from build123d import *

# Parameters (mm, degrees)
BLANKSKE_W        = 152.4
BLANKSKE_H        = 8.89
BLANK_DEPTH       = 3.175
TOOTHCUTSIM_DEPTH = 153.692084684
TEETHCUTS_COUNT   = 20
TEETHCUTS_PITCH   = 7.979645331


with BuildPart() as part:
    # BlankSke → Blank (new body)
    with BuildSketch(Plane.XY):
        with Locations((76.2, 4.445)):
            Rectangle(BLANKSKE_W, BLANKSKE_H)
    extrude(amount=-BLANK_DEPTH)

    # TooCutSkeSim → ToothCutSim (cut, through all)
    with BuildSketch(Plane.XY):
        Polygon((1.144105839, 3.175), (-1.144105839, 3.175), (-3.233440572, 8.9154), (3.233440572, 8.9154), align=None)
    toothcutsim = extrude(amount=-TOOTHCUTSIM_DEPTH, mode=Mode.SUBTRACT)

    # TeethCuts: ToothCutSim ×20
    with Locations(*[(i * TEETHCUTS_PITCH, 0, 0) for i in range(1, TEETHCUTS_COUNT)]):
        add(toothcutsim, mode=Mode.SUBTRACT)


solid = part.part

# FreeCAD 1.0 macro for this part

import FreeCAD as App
import Part
import Sketcher
Q = App.Units.Quantity


def add_polygon(sketch, points):
    """Adds a closed chain of lines whose ends are joined by coincident constraints."""
    first, n = sketch.GeometryCount, len(points)
    for a, b in zip(points, points[1:] + points[:1]):
        sketch.addGeometry(Part.LineSegment(App.Vector(*a, 0), App.Vector(*b, 0)), False)
    for i in range(n):
        sketch.addConstraint(Sketcher.Constraint("Coincident", first + i, 2, first + (i + 1) % n, 1))

doc = App.newDocument("Part")
body = doc.addObject("PartDesign::Body", "Body")

sketch1 = doc.addObject("Sketcher::SketchObject", "Sketch")
body.addObject(sketch1)
sketch1.AttachmentSupport = (doc.XY_Plane, [""])
sketch1.MapMode = "FlatFace"
add_polygon(sketch1, [(0, 8.89), (0, 0), (152.4, 0), (152.4, 8.89)])
sketch1.addConstraint([
    Sketcher.Constraint("Vertical", 0),
    Sketcher.Constraint("Horizontal", 1),
    Sketcher.Constraint("Vertical", 2),
    Sketcher.Constraint("Horizontal", 3),
    Sketcher.Constraint("Coincident", 0, 2, -1, 1),
    Sketcher.Constraint("DistanceX", 1, 1, 1, 2, Q("6 in")),
    Sketcher.Constraint("DistanceY", 0, 2, 0, 1, Q("0.35 in")),
])
pad1 = doc.addObject("PartDesign::Pad", "Pad")
body.addObject(pad1)
pad1.Profile = sketch1
pad1.Length = Q("0.125 in")
pad1.Reversed = True

sketch2 = doc.addObject("Sketcher::SketchObject", "Sketch001")
body.addObject(sketch2)
sketch2.AttachmentSupport = (doc.XY_Plane, [""])
sketch2.MapMode = "FlatFace"
add_polygon(sketch2, [(-1.144106, 3.175), (1.144106, 3.175), (3.233441, 8.9154), (-3.233441, 8.9154)])
sketch2.addConstraint([
    Sketcher.Constraint("Horizontal", 0),
    Sketcher.Constraint("Horizontal", 2),
    Sketcher.Constraint("Equal", 1, 3),
    Sketcher.Constraint("Angle", 1, Q("70 deg")),
    Sketcher.Constraint("DistanceY", -1, 1, 0, 2, Q("0.125 in")),
    Sketcher.Constraint("DistanceY", -1, 1, 1, 2, Q("0.351 in")),
    Sketcher.Constraint("DistanceX", 0, 1, 0, 2, 2.288212),
    Sketcher.Constraint("DistanceX", -1, 1, 1, 2, 3.233441),
])
pocket1 = doc.addObject("PartDesign::Pocket", "Pocket")
body.addObject(pocket1)
pocket1.Profile = sketch2
pocket1.Type = "ThroughAll"
doc.recompute()

linearpattern = doc.addObject("PartDesign::LinearPattern", "LinearPattern")
body.addObject(linearpattern)
linearpattern.Originals = [pocket1]
linearpattern.Direction = (doc.X_Axis, [""])
linearpattern.Mode = "offset"
linearpattern.Offset = 7.979645
linearpattern.Occurrences = 20
body.Tip = linearpattern

doc.recompute()
